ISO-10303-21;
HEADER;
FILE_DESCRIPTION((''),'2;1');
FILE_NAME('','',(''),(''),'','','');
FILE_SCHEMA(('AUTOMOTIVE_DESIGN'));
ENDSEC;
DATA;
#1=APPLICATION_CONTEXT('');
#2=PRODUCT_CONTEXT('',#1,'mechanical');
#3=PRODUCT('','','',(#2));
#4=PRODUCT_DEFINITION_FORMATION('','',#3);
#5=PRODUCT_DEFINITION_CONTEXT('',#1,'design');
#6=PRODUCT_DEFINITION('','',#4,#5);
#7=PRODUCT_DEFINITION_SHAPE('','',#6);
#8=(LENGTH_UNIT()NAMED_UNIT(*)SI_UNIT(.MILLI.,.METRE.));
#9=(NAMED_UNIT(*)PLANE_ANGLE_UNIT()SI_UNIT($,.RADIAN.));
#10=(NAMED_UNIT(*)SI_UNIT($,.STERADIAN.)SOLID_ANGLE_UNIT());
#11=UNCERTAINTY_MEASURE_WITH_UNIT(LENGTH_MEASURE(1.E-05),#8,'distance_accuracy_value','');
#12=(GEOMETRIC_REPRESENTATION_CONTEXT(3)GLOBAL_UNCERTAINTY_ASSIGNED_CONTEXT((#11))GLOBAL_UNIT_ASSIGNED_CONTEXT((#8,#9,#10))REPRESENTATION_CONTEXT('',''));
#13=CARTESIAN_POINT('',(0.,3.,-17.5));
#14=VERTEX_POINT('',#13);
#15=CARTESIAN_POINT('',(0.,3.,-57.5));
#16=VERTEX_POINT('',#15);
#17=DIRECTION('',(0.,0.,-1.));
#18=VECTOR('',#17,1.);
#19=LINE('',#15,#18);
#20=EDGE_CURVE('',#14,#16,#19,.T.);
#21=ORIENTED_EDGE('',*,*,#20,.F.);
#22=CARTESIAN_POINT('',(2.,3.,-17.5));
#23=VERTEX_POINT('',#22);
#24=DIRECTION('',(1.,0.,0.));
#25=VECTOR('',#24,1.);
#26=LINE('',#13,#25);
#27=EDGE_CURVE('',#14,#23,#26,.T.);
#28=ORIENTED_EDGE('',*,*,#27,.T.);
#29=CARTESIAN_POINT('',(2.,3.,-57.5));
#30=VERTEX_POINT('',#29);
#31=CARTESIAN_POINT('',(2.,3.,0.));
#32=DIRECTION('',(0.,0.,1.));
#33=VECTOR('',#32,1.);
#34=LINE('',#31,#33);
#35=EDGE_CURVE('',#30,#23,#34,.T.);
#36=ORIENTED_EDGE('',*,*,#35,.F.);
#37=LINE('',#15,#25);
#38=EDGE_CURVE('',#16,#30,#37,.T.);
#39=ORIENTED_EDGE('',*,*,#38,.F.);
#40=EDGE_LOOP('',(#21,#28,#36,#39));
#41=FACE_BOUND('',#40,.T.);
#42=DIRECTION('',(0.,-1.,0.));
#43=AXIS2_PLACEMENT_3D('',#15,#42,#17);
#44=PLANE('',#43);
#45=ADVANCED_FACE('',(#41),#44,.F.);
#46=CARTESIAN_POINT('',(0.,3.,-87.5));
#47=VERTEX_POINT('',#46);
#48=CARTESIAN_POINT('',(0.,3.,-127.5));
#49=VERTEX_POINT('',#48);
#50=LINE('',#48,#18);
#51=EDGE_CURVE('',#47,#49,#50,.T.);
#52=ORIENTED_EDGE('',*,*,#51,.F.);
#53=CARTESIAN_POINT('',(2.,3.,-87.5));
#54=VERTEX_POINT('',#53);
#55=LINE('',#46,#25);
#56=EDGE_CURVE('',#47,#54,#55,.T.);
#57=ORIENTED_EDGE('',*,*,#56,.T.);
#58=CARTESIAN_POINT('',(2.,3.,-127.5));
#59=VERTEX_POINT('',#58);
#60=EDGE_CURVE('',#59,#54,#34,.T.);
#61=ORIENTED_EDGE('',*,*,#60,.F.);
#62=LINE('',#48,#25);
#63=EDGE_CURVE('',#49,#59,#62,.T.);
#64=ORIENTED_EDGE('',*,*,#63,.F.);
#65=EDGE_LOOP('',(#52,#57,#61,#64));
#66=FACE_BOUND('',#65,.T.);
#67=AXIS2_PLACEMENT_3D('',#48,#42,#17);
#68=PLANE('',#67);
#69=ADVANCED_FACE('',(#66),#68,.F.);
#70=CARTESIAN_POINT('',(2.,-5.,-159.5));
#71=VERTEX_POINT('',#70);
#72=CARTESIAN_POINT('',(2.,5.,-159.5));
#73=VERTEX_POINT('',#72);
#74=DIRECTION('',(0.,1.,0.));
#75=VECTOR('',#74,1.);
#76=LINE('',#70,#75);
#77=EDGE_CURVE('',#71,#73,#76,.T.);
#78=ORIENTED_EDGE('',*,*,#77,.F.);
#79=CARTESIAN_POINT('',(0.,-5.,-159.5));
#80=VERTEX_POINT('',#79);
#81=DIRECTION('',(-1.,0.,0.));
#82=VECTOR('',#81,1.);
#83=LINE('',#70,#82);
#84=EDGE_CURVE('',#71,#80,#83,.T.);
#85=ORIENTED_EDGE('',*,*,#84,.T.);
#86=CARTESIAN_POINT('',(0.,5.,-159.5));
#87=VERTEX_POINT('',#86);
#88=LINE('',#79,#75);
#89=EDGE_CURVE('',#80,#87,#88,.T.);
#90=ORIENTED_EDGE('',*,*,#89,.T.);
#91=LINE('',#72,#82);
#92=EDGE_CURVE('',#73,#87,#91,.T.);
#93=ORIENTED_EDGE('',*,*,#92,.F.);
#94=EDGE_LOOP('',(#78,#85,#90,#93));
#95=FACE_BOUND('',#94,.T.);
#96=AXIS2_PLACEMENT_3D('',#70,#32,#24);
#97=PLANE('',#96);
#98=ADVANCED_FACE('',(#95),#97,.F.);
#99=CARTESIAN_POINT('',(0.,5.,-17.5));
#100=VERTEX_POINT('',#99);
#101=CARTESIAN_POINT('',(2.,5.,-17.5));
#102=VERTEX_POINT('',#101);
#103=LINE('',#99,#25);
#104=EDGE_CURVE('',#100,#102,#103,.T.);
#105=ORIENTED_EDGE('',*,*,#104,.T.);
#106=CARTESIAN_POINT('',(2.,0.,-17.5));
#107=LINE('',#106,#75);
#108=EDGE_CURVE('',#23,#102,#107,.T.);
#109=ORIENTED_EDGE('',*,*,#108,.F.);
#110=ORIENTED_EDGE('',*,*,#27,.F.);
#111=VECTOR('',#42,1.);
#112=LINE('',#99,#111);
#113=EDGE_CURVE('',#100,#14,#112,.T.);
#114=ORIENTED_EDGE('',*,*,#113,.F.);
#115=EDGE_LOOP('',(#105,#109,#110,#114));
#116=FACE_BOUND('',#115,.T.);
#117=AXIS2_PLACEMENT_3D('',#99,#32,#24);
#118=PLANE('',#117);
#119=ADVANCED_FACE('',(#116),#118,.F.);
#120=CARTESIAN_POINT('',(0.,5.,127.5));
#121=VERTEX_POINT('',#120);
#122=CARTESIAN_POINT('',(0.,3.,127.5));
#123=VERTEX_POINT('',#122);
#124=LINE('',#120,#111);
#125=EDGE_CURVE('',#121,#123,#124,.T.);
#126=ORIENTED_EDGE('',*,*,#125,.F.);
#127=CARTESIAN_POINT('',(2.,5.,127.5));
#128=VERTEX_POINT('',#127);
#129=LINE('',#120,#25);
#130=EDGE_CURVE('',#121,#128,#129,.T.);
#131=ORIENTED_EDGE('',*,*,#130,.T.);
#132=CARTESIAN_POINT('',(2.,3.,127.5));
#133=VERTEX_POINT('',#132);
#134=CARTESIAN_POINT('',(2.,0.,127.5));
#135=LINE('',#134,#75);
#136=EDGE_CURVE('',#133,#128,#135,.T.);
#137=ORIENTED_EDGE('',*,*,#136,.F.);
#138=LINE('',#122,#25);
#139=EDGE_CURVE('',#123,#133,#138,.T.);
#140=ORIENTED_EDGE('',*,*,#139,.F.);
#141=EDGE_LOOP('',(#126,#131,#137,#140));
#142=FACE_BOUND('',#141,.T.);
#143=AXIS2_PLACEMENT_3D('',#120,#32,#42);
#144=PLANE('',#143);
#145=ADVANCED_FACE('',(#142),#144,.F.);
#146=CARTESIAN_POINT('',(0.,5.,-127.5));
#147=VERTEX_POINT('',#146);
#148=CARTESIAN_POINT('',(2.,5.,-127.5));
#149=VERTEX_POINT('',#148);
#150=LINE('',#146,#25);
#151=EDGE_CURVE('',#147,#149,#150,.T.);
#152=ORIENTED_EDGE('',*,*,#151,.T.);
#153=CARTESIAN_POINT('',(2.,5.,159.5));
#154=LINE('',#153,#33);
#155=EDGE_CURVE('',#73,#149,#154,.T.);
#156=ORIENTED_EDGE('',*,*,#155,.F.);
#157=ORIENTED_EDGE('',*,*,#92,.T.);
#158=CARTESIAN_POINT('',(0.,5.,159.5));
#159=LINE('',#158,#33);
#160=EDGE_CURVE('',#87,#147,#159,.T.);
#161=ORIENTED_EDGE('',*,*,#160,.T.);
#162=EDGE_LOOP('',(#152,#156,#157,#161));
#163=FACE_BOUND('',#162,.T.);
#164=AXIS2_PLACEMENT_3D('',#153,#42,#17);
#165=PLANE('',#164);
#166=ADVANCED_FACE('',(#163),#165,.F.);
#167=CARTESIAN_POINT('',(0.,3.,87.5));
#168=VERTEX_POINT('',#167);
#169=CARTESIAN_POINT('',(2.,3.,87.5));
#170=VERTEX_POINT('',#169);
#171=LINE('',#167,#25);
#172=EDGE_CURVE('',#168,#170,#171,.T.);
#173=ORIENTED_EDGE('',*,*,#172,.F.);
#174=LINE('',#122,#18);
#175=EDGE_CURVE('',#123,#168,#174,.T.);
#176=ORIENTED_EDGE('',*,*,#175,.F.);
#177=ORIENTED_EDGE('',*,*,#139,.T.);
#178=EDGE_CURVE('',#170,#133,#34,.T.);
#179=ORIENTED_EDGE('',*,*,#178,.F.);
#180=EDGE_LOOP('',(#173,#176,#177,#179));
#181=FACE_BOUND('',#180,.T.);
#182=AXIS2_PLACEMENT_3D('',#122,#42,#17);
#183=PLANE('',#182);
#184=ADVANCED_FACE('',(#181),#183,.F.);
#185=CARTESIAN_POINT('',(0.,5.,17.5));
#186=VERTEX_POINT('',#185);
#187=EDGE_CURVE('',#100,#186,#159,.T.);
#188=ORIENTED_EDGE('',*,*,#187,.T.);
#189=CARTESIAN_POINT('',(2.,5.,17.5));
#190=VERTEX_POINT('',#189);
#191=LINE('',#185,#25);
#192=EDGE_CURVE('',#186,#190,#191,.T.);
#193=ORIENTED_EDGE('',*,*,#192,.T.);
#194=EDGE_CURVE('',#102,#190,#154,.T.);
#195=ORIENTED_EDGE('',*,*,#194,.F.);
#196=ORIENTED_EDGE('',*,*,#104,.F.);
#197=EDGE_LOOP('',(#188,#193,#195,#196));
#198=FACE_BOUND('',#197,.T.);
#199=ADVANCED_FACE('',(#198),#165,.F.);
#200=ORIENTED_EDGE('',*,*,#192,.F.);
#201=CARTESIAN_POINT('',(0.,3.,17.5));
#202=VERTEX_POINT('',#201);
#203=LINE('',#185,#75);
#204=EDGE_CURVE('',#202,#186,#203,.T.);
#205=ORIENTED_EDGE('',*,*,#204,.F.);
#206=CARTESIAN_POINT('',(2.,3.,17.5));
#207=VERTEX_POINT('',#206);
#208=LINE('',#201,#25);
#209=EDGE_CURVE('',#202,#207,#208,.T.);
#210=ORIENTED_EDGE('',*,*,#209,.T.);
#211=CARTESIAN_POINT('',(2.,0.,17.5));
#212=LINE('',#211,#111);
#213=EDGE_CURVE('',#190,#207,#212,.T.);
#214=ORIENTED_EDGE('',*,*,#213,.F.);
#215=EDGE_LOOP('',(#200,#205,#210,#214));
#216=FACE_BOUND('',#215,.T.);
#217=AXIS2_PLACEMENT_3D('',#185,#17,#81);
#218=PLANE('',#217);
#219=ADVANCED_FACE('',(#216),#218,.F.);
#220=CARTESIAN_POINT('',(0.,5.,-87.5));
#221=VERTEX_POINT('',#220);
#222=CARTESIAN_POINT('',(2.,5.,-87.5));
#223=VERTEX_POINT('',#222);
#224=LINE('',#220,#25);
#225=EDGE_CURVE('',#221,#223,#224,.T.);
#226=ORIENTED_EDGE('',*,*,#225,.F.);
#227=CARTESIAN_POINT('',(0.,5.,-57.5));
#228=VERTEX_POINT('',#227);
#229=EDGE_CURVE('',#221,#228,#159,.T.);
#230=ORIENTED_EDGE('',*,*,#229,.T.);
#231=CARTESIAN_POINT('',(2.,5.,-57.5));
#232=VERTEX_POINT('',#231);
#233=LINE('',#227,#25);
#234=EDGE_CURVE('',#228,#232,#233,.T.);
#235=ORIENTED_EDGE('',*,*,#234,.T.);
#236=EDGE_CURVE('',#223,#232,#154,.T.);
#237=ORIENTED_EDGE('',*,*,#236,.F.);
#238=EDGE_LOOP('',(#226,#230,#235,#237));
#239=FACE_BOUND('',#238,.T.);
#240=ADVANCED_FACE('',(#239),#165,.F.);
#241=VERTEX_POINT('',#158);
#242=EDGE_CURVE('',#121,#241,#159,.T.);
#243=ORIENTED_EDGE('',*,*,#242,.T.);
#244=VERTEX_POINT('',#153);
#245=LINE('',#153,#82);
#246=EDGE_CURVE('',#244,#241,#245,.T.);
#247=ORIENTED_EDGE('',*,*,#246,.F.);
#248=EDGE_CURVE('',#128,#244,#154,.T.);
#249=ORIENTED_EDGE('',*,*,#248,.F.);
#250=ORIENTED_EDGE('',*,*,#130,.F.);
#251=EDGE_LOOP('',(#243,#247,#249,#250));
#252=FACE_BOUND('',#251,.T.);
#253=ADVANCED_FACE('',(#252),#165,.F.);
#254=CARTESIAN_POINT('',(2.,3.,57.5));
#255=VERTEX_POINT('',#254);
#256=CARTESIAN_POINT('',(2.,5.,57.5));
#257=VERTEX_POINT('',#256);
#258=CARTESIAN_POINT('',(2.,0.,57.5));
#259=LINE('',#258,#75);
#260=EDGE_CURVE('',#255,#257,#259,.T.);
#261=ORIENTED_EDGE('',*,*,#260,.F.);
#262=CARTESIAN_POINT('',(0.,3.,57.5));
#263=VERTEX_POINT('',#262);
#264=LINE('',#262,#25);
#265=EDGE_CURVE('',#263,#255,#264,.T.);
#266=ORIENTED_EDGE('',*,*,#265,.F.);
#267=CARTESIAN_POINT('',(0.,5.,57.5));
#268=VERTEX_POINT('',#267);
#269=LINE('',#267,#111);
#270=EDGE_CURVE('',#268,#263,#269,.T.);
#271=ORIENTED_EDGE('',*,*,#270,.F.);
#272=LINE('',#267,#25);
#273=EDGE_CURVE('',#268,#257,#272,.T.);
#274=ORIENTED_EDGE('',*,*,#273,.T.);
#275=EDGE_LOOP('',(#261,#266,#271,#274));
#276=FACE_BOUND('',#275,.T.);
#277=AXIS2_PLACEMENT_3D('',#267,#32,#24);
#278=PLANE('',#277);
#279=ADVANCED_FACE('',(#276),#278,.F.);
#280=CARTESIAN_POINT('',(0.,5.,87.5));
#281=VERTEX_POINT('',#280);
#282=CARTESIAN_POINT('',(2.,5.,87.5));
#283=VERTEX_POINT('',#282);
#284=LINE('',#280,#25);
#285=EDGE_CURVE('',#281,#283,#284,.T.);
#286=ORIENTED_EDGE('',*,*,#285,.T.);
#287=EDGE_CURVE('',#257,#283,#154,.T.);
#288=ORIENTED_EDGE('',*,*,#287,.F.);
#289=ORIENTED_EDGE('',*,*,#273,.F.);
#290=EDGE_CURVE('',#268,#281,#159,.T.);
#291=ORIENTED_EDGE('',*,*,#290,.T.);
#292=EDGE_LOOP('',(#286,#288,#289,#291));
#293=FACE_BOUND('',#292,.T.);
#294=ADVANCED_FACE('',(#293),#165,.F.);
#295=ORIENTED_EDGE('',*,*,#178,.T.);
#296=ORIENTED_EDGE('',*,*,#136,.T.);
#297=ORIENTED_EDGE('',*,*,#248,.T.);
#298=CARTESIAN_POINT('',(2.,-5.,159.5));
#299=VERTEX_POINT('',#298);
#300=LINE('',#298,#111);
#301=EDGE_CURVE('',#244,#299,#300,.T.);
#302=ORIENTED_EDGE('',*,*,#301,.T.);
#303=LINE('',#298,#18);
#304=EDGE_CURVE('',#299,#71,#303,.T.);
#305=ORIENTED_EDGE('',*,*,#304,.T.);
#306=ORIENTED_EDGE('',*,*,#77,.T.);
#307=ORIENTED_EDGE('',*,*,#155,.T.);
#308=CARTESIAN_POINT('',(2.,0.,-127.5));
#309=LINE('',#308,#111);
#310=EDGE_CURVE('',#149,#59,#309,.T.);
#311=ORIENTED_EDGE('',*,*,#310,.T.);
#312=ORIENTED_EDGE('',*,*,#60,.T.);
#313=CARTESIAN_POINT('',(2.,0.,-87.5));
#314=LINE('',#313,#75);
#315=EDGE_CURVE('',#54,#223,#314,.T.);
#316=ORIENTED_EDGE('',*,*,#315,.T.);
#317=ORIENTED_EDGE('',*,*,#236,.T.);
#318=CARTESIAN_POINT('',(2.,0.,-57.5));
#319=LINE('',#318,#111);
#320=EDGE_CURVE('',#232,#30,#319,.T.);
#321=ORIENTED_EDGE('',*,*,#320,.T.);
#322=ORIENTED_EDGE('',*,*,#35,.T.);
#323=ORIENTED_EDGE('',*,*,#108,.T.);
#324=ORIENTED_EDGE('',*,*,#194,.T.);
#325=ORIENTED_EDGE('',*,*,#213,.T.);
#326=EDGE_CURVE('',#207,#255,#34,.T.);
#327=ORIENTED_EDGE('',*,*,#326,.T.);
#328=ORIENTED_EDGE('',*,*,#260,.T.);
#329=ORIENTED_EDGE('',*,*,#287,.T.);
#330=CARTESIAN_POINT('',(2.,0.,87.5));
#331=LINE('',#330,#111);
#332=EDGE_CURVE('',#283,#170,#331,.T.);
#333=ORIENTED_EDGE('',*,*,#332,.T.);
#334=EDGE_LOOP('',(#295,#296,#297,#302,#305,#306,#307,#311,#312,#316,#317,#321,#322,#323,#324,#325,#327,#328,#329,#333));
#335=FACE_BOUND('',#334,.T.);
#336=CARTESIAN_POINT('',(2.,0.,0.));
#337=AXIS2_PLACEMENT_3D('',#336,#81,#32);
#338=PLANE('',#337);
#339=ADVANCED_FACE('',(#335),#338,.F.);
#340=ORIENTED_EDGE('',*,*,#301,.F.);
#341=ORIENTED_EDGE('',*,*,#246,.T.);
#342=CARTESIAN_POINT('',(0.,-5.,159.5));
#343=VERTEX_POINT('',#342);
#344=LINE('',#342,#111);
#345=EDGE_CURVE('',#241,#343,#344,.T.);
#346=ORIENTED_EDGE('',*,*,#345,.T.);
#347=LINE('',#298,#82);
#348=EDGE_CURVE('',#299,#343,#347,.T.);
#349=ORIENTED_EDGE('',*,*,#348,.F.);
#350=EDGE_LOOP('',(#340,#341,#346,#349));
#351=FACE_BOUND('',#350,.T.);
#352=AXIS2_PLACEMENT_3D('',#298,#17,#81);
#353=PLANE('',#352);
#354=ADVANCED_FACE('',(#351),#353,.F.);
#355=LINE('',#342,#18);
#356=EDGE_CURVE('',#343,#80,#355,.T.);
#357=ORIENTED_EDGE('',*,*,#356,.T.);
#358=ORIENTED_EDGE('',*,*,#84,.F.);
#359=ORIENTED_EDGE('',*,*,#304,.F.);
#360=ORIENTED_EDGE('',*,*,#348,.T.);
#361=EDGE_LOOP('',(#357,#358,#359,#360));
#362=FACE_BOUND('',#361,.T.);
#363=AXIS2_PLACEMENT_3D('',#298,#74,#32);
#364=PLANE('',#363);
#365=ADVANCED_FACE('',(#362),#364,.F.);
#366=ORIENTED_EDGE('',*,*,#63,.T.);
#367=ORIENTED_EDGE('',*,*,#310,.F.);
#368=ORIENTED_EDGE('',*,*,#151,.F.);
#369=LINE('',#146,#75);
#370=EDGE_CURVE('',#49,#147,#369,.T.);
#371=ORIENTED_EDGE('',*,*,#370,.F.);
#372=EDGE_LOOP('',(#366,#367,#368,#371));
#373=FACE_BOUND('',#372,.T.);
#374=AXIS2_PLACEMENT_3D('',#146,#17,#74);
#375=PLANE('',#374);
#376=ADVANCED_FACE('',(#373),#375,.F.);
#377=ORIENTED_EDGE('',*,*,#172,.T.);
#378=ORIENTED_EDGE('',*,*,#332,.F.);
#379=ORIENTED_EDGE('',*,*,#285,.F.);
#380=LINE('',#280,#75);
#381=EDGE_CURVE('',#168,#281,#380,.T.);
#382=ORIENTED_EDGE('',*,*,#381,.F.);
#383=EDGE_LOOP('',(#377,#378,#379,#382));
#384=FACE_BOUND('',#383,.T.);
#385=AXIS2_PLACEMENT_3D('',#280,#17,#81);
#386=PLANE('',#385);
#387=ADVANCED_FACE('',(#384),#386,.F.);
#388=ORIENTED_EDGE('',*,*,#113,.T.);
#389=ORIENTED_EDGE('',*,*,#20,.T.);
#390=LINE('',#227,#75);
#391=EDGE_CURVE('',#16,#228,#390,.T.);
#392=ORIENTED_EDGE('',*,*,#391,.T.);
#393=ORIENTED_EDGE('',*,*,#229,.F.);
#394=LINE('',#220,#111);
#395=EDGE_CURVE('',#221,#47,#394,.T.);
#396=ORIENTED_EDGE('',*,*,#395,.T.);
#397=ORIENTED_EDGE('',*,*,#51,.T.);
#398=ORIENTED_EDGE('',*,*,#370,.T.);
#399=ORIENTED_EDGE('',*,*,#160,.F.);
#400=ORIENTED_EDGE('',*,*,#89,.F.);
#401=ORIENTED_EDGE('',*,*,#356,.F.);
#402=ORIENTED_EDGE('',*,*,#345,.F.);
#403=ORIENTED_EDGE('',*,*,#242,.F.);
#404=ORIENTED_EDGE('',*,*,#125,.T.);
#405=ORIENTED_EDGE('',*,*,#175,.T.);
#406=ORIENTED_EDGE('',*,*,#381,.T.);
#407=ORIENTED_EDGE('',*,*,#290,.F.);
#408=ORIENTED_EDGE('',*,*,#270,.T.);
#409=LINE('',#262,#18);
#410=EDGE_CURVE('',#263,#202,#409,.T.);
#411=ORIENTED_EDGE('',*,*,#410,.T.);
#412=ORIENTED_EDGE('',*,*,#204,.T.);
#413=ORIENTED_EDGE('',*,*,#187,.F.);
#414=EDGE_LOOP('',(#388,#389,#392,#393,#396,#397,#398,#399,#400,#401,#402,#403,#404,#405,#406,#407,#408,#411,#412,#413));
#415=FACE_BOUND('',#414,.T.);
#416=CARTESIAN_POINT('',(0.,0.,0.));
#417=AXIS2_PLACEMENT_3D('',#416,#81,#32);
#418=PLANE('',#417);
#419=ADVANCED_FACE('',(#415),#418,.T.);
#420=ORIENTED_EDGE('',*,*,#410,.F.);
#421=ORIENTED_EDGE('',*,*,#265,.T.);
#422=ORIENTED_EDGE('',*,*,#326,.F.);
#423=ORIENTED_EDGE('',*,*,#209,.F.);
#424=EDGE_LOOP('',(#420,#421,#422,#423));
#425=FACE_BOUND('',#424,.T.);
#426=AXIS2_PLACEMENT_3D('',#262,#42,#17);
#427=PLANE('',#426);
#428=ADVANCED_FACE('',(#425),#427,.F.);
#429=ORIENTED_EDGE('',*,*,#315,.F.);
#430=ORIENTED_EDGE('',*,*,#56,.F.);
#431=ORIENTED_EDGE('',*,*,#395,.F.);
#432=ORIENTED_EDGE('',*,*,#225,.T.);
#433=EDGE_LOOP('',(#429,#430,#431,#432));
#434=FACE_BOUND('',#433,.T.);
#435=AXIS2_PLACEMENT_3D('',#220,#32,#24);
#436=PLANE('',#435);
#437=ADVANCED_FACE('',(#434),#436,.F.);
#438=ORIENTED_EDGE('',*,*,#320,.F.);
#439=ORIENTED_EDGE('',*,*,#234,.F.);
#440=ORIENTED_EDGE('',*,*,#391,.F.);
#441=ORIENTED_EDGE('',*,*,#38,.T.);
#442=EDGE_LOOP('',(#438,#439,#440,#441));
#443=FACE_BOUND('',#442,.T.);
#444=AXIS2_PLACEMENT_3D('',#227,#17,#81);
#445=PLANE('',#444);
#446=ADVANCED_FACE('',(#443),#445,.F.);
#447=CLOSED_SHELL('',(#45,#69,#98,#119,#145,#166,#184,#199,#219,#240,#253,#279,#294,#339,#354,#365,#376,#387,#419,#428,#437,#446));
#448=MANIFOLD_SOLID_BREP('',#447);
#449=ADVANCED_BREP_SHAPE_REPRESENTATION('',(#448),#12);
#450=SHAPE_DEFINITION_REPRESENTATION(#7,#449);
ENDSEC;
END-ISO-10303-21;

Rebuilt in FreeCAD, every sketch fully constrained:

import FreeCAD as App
import Part
import Sketcher

V = App.Vector

doc = App.newDocument("Part")
body = doc.addObject("PartDesign::Body", "Body")

# Sketch on YZ plane
sketch1 = body.newObject("Sketcher::SketchObject", "Sketch")
sketch1.AttachmentSupport = (doc.getObject("YZ_Plane"), [""])
sketch1.MapMode = "FlatFace"
sketch1.addGeometry([
    Part.LineSegment(V(5, 160, 0), V(-5, 160, 0)),
    Part.LineSegment(V(-5, 160, 0), V(-5, -160, 0)),
    Part.LineSegment(V(-5, -160, 0), V(5, -160, 0)),
    Part.LineSegment(V(5, -160, 0), V(5, 160, 0)),
], False)
sketch1.addConstraint([
    Sketcher.Constraint("Coincident", 0, 2, 1, 1),
    Sketcher.Constraint("Coincident", 1, 2, 2, 1),
    Sketcher.Constraint("Coincident", 2, 2, 3, 1),
    Sketcher.Constraint("Coincident", 3, 2, 0, 1),
    Sketcher.Constraint("Horizontal", 0),
    Sketcher.Constraint("Vertical", 1),
    Sketcher.Constraint("Horizontal", 2),
    Sketcher.Constraint("Vertical", 3),
    Sketcher.Constraint("Symmetric", 0, 2, 2, 2, -1, 1),
    Sketcher.Constraint("DistanceX", 0, 2, 0, 1, 10.0),
    Sketcher.Constraint("DistanceY", 1, 2, 1, 1, 319.0),
])
pad1 = body.newObject("PartDesign::Pad", "Pad")
pad1.Profile = sketch1
pad1.Length = 2

# Sketch on YZ plane
sketch2 = body.newObject("Sketcher::SketchObject", "Sketch001")
sketch2.AttachmentSupport = (doc.getObject("YZ_Plane"), [""])
sketch2.MapMode = "FlatFace"
sketch2.AttachmentOffset = App.Placement(V(0, 0, 2), App.Rotation())
sketch2.addGeometry([
    Part.LineSegment(V(5, 127.5, 0), V(3, 127.5, 0)),  # 0
    Part.LineSegment(V(3, 127.5, 0), V(3, 87.5, 0)),  # 1
    Part.LineSegment(V(3, 87.5, 0), V(5, 87.5, 0)),  # 2
    Part.LineSegment(V(5, 87.5, 0), V(5, 127.5, 0)),  # 3
    Part.LineSegment(V(5, 57.5, 0), V(3, 57.5, 0)),  # 4
    Part.LineSegment(V(3, 57.5, 0), V(3, 17.5, 0)),  # 5
    Part.LineSegment(V(3, 17.5, 0), V(5, 17.5, 0)),  # 6
    Part.LineSegment(V(5, 17.5, 0), V(5, 57.5, 0)),  # 7
    Part.LineSegment(V(5, -17.5, 0), V(3, -17.5, 0)),  # 8
    Part.LineSegment(V(3, -17.5, 0), V(3, -57.5, 0)),  # 9
    Part.LineSegment(V(3, -57.5, 0), V(5, -57.5, 0)),  # 10
    Part.LineSegment(V(5, -57.5, 0), V(5, -17.5, 0)),  # 11
    Part.LineSegment(V(5, -87.5, 0), V(3, -87.5, 0)),  # 12
    Part.LineSegment(V(3, -87.5, 0), V(3, -127.5, 0)),  # 13
    Part.LineSegment(V(3, -127.5, 0), V(5, -127.5, 0)),  # 14
    Part.LineSegment(V(5, -127.5, 0), V(5, -87.5, 0)),  # 15
], False)
sketch2.addConstraint([
    Sketcher.Constraint("Coincident", 0, 2, 1, 1),
    Sketcher.Constraint("Coincident", 1, 2, 2, 1),
    Sketcher.Constraint("Coincident", 2, 2, 3, 1),
    Sketcher.Constraint("Coincident", 3, 2, 0, 1),
    Sketcher.Constraint("Coincident", 4, 2, 5, 1),
    Sketcher.Constraint("Coincident", 5, 2, 6, 1),
    Sketcher.Constraint("Coincident", 6, 2, 7, 1),
    Sketcher.Constraint("Coincident", 7, 2, 4, 1),
    Sketcher.Constraint("Coincident", 8, 2, 9, 1),
    Sketcher.Constraint("Coincident", 9, 2, 10, 1),
    Sketcher.Constraint("Coincident", 10, 2, 11, 1),
    Sketcher.Constraint("Coincident", 11, 2, 8, 1),
    Sketcher.Constraint("Coincident", 12, 2, 13, 1),
    Sketcher.Constraint("Coincident", 13, 2, 14, 1),
    Sketcher.Constraint("Coincident", 14, 2, 15, 1),
    Sketcher.Constraint("Coincident", 15, 2, 12, 1),
    Sketcher.Constraint("Horizontal", 0),
    Sketcher.Constraint("Vertical", 1),
    Sketcher.Constraint("Horizontal", 2),
    Sketcher.Constraint("Vertical", 3),
    Sketcher.Constraint("Horizontal", 4),
    Sketcher.Constraint("Vertical", 5),
    Sketcher.Constraint("Horizontal", 6),
    Sketcher.Constraint("Vertical", 7),
    Sketcher.Constraint("Horizontal", 8),
    Sketcher.Constraint("Vertical", 9),
    Sketcher.Constraint("Horizontal", 10),
    Sketcher.Constraint("Vertical", 11),
    Sketcher.Constraint("Horizontal", 12),
    Sketcher.Constraint("Vertical", 13),
    Sketcher.Constraint("Horizontal", 14),
    Sketcher.Constraint("Vertical", 15),
    Sketcher.Constraint("Symmetric", 5, 2, 8, 2, -1),
    Sketcher.Constraint("Symmetric", 7, 2, 10, 2, -1),
    Sketcher.Constraint("Symmetric", 1, 2, 12, 2, -1),
    Sketcher.Constraint("Symmetric", 3, 2, 14, 2, -1),
    Sketcher.Constraint("Vertical", 1, 2, 4, 2),
    Sketcher.Constraint("Vertical", 3, 2, 6, 2),
    Sketcher.Constraint("Equal", 3, 5),
    Sketcher.Constraint("DistanceX", 0, 2, 0, 1, 2.0),
    Sketcher.Constraint("DistanceY", 1, 2, 1, 1, 40.0),
    Sketcher.Constraint("DistanceX", -1, 1, 0, 2, 3.0),
    Sketcher.Constraint("DistanceY", 4, 2, 1, 2, 30.0),
    Sketcher.Constraint("DistanceY", 8, 2, 5, 2, 35.0),
])
pocket1 = body.newObject("PartDesign::Pocket", "Pocket")
pocket1.Profile = sketch2
pocket1.Type = "ThroughAll"
pocket1.Midplane = True

doc.recompute()
